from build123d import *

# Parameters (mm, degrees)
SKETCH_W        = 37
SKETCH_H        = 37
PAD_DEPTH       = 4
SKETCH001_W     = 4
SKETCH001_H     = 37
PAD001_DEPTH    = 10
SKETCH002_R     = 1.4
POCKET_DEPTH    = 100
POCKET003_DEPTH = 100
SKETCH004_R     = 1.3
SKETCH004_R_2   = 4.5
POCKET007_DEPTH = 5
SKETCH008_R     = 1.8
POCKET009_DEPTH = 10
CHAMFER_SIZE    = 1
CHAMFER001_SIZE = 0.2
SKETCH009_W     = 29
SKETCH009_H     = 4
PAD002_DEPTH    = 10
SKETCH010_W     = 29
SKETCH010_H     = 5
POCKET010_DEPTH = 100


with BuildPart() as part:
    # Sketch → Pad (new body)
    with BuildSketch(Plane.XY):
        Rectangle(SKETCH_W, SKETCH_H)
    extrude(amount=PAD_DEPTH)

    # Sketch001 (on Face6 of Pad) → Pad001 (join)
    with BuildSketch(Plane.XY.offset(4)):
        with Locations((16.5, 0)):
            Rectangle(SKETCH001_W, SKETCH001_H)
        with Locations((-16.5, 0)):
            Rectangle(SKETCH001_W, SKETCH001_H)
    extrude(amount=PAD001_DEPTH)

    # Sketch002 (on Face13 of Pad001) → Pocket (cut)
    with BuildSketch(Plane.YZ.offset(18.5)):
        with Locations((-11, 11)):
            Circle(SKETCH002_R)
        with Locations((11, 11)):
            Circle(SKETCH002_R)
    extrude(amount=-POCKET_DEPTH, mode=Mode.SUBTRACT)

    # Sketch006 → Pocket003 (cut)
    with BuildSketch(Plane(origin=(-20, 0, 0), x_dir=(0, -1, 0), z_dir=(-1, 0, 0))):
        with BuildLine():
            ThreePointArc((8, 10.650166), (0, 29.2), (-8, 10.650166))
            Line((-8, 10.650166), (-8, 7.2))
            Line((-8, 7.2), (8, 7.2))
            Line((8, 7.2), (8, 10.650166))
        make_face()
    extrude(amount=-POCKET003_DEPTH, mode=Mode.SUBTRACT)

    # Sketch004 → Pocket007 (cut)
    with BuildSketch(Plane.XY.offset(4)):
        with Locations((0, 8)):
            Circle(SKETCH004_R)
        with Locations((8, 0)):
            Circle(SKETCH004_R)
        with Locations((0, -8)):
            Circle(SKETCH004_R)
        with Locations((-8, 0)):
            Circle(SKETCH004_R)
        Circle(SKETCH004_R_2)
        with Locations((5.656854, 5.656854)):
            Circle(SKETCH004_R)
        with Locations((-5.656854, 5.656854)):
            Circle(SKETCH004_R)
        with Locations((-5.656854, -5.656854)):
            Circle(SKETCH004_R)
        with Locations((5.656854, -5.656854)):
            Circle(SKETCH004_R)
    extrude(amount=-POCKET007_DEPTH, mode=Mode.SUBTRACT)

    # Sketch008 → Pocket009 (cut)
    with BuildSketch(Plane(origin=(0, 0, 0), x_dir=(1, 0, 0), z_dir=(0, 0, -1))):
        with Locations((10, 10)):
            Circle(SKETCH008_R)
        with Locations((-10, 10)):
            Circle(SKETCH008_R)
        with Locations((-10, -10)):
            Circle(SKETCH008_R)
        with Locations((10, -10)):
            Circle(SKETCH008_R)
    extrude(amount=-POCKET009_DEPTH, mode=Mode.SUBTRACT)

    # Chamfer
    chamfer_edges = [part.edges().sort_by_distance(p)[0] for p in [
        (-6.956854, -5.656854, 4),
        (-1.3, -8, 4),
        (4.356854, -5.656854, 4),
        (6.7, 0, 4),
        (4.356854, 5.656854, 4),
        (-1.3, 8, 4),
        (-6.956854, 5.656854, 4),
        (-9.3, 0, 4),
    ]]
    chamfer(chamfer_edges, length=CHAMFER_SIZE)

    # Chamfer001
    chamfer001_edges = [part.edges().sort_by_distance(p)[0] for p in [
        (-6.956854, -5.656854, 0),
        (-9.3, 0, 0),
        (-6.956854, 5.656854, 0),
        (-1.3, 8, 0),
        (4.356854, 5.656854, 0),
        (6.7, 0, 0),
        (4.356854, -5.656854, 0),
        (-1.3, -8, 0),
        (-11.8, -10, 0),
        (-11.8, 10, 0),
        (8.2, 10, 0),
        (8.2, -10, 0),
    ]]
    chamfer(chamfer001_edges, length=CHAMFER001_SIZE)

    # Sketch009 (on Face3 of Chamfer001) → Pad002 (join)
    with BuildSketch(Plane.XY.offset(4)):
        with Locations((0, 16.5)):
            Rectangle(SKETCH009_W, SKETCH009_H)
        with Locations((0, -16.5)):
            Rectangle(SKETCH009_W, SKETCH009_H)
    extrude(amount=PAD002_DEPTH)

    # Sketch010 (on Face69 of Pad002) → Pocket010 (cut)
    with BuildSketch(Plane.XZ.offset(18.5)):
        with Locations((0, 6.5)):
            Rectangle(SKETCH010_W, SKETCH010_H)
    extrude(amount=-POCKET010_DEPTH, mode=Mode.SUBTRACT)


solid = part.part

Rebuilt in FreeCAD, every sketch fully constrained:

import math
import FreeCAD as App
import Part
import Sketcher


def edges_at(feature, points):
    """Names of the edges that pass closest to the given points."""
    edges = feature.Shape.Edges
    near = lambda p: min(range(len(edges)), key=lambda i: edges[i].distToShape(Part.Vertex(*p))[0])
    return sorted({f"Edge{near(p) + 1}" for p in points})


def add_polygon(sketch, points):
    """Adds a closed chain of lines whose ends are joined by coincident constraints."""
    first, n = sketch.GeometryCount, len(points)
    for a, b in zip(points, points[1:] + points[:1]):
        sketch.addGeometry(Part.LineSegment(App.Vector(*a, 0), App.Vector(*b, 0)), False)
    for i in range(n):
        sketch.addConstraint(Sketcher.Constraint("Coincident", first + i, 2, first + (i + 1) % n, 1))

doc = App.newDocument("Part")
body = doc.addObject("PartDesign::Body", "Body")

# Sketch on XY plane
sketch1 = body.newObject("Sketcher::SketchObject", "Sketch")
sketch1.AttachmentSupport = (doc.getObject("XY_Plane"), [""])
sketch1.MapMode = "FlatFace"
add_polygon(sketch1, [(-18.5, 18.5), (-18.5, -18.5), (18.5, -18.5), (18.5, 18.5)])  # lines 0-3
sketch1.addConstraint(Sketcher.Constraint("Vertical", 0))
sketch1.addConstraint(Sketcher.Constraint("Horizontal", 1))
sketch1.addConstraint(Sketcher.Constraint("Vertical", 2))
sketch1.addConstraint(Sketcher.Constraint("Horizontal", 3))
sketch1.addConstraint(Sketcher.Constraint("Symmetric", 0, 2, 2, 2, -1, 1))
sketch1.addConstraint(Sketcher.Constraint("Equal", 3, 0))
sketch1.addConstraint(Sketcher.Constraint("DistanceX", 1, 1, 1, 2, 37.0))
pad1 = body.newObject("PartDesign::Pad", "Pad")
pad1.Profile = sketch1
pad1.Length = 4

# Sketch on XY plane
sketch2 = body.newObject("Sketcher::SketchObject", "Sketch001")
sketch2.AttachmentSupport = (doc.getObject("XY_Plane"), [""])
sketch2.MapMode = "FlatFace"
sketch2.AttachmentOffset = App.Placement(App.Vector(0, 0, 4), App.Rotation())
add_polygon(sketch2, [(14.5, 18.5), (14.5, -18.5), (18.5, -18.5), (18.5, 18.5)])  # lines 0-3
add_polygon(sketch2, [(-18.5, 18.5), (-18.5, -18.5), (-14.5, -18.5), (-14.5, 18.5)])  # lines 4-7
sketch2.addConstraint(Sketcher.Constraint("Vertical", 0))
sketch2.addConstraint(Sketcher.Constraint("Horizontal", 1))
sketch2.addConstraint(Sketcher.Constraint("Vertical", 2))
sketch2.addConstraint(Sketcher.Constraint("Horizontal", 3))
sketch2.addConstraint(Sketcher.Constraint("Vertical", 4))
sketch2.addConstraint(Sketcher.Constraint("Horizontal", 5))
sketch2.addConstraint(Sketcher.Constraint("Vertical", 6))
sketch2.addConstraint(Sketcher.Constraint("Horizontal", 7))
sketch2.addConstraint(Sketcher.Constraint("Symmetric", 2, 2, 4, 2, -1, 1))
sketch2.addConstraint(Sketcher.Constraint("Symmetric", 0, 2, 6, 2, -1, 1))
sketch2.addConstraint(Sketcher.Constraint("Horizontal", 1, 2, 4, 2))
sketch2.addConstraint(Sketcher.Constraint("DistanceX", 1, 1, 1, 2, 4.0))
sketch2.addConstraint(Sketcher.Constraint("DistanceY", 0, 2, 0, 1, 37.0))
sketch2.addConstraint(Sketcher.Constraint("DistanceX", 4, 2, 0, 2, 33.0))
pad2 = body.newObject("PartDesign::Pad", "Pad001")
pad2.Profile = sketch2
pad2.Length = 10

# Sketch on YZ plane
sketch3 = body.newObject("Sketcher::SketchObject", "Sketch002")
sketch3.AttachmentSupport = (doc.getObject("YZ_Plane"), [""])
sketch3.MapMode = "FlatFace"
sketch3.AttachmentOffset = App.Placement(App.Vector(0, 0, 18.5), App.Rotation())
sketch3.addGeometry(Part.Circle(App.Vector(-11, 11, 0), App.Vector(0, 0, 1), 1.4), False)
sketch3.addGeometry(Part.Circle(App.Vector(11, 11, 0), App.Vector(0, 0, 1), 1.4), False)
sketch3.addConstraint(Sketcher.Constraint("Equal", 0, 1))
sketch3.addConstraint(Sketcher.Constraint("Symmetric", 0, 3, 1, 3, -2))
sketch3.addConstraint(Sketcher.Constraint("Diameter", 0, 2.8))
sketch3.addConstraint(Sketcher.Constraint("DistanceX", 0, 3, -1, 1, 11.0))
sketch3.addConstraint(Sketcher.Constraint("DistanceY", -1, 1, 0, 3, 11.0))
pocket1 = body.newObject("PartDesign::Pocket", "Pocket")
pocket1.Profile = sketch3
pocket1.Length = 100

# Sketch on YZ plane
sketch4 = body.newObject("Sketcher::SketchObject", "Sketch003")
sketch4.AttachmentSupport = (doc.getObject("YZ_Plane"), [""])
sketch4.MapMode = "FlatFace"
sketch4.AttachmentOffset = App.Placement(App.Vector(0, 0, -20), App.Rotation())
sketch4.addGeometry(Part.ArcOfCircle(Part.Circle(App.Vector(0, 18.2, 0), App.Vector(0, 0, 1), 11), math.radians(-43.341757), math.radians(223.341757)), False)
sketch4.addGeometry(Part.LineSegment(App.Vector(8, 10.650166, 0), App.Vector(8, 7.2, 0)), False)
sketch4.addGeometry(Part.LineSegment(App.Vector(8, 7.2, 0), App.Vector(-8, 7.2, 0)), False)
sketch4.addGeometry(Part.LineSegment(App.Vector(-8, 7.2, 0), App.Vector(-8, 10.650166, 0)), False)
sketch4.addConstraint(Sketcher.Constraint("Coincident", 0, 1, 1, 1))
sketch4.addConstraint(Sketcher.Constraint("Coincident", 1, 2, 2, 1))
sketch4.addConstraint(Sketcher.Constraint("Coincident", 2, 2, 3, 1))
sketch4.addConstraint(Sketcher.Constraint("Coincident", 3, 2, 0, 2))
sketch4.addConstraint(Sketcher.Constraint("Vertical", 1))
sketch4.addConstraint(Sketcher.Constraint("Horizontal", 2))
sketch4.addConstraint(Sketcher.Constraint("Vertical", 3))
sketch4.addConstraint(Sketcher.Constraint("Symmetric", 0, 1, 3, 2, -2))
sketch4.addConstraint(Sketcher.Constraint("Radius", 0, 11.0))
sketch4.addConstraint(Sketcher.Constraint("DistanceX", 2, 2, 2, 1, 16.0))
sketch4.addConstraint(Sketcher.Constraint("DistanceY", 1, 2, 0, 3, 11.0))
sketch4.addConstraint(Sketcher.Constraint("DistanceY", -1, 1, 0, 3, 18.2))
pocket2 = body.newObject("PartDesign::Pocket", "Pocket001")
pocket2.Profile = sketch4
pocket2.Length = 100
pocket2.Reversed = True

# Sketch on XY plane
sketch5 = body.newObject("Sketcher::SketchObject", "Sketch004")
sketch5.AttachmentSupport = (doc.getObject("XY_Plane"), [""])
sketch5.MapMode = "FlatFace"
sketch5.AttachmentOffset = App.Placement(App.Vector(0, 0, 4), App.Rotation())
sketch5.addGeometry(Part.Circle(App.Vector(0, 8, 0), App.Vector(0, 0, 1), 1.3), False)
sketch5.addGeometry(Part.Circle(App.Vector(8, 0, 0), App.Vector(0, 0, 1), 1.3), False)
sketch5.addGeometry(Part.Circle(App.Vector(0, -8, 0), App.Vector(0, 0, 1), 1.3), False)
sketch5.addGeometry(Part.Circle(App.Vector(-8, 0, 0), App.Vector(0, 0, 1), 1.3), False)
sketch5.addGeometry(Part.Circle(App.Vector(0, 0, 0), App.Vector(0, 0, 1), 4.5), False)
sketch5.addGeometry(Part.Circle(App.Vector(5.656854, 5.656854, 0), App.Vector(0, 0, 1), 1.3), False)
sketch5.addGeometry(Part.Circle(App.Vector(-5.656854, 5.656854, 0), App.Vector(0, 0, 1), 1.3), False)
sketch5.addGeometry(Part.Circle(App.Vector(-5.656854, -5.656854, 0), App.Vector(0, 0, 1), 1.3), False)
sketch5.addGeometry(Part.Circle(App.Vector(5.656854, -5.656854, 0), App.Vector(0, 0, 1), 1.3), False)
sketch5.addConstraint(Sketcher.Constraint("Coincident", 4, 3, -1, 1))
sketch5.addConstraint(Sketcher.Constraint("Equal", 0, 1))
sketch5.addConstraint(Sketcher.Constraint("Equal", 1, 2))
sketch5.addConstraint(Sketcher.Constraint("Equal", 2, 3))
sketch5.addConstraint(Sketcher.Constraint("Equal", 3, 5))
sketch5.addConstraint(Sketcher.Constraint("Equal", 5, 6))
sketch5.addConstraint(Sketcher.Constraint("Equal", 6, 7))
sketch5.addConstraint(Sketcher.Constraint("Equal", 7, 8))
sketch5.addConstraint(Sketcher.Constraint("Symmetric", 0, 3, 2, 3, -1, 1))
sketch5.addConstraint(Sketcher.Constraint("Symmetric", 1, 3, 3, 3, -1, 1))
sketch5.addConstraint(Sketcher.Constraint("Symmetric", 5, 3, 7, 3, -1, 1))
sketch5.addConstraint(Sketcher.Constraint("Symmetric", 6, 3, 8, 3, -1, 1))
sketch5.addConstraint(Sketcher.Constraint("Symmetric", 5, 3, 6, 3, -2))
sketch5.addConstraint(Sketcher.Constraint("PointOnObject", 0, 3, -2))
sketch5.addConstraint(Sketcher.Constraint("PointOnObject", 1, 3, -1))
sketch5.addConstraint(Sketcher.Constraint("Diameter", 4, 9.0))
sketch5.addConstraint(Sketcher.Constraint("Diameter", 0, 2.6))
sketch5.addConstraint(Sketcher.Constraint("DistanceY", -1, 1, 0, 3, 8.0))
sketch5.addConstraint(Sketcher.Constraint("DistanceX", -1, 1, 1, 3, 8.0))
sketch5.addConstraint(Sketcher.Constraint("DistanceX", -1, 1, 5, 3, 5.656854))
sketch5.addConstraint(Sketcher.Constraint("DistanceY", -1, 1, 5, 3, 5.656854))
pocket3 = body.newObject("PartDesign::Pocket", "Pocket002")
pocket3.Profile = sketch5
pocket3.Length = 5

# Sketch on XY plane
sketch6 = body.newObject("Sketcher::SketchObject", "Sketch005")
sketch6.AttachmentSupport = (doc.getObject("XY_Plane"), [""])
sketch6.MapMode = "FlatFace"
sketch6.addGeometry(Part.Circle(App.Vector(10, -10, 0), App.Vector(0, 0, 1), 1.8), False)
sketch6.addGeometry(Part.Circle(App.Vector(-10, -10, 0), App.Vector(0, 0, 1), 1.8), False)
sketch6.addGeometry(Part.Circle(App.Vector(-10, 10, 0), App.Vector(0, 0, 1), 1.8), False)
sketch6.addGeometry(Part.Circle(App.Vector(10, 10, 0), App.Vector(0, 0, 1), 1.8), False)
sketch6.addConstraint(Sketcher.Constraint("Equal", 0, 1))
sketch6.addConstraint(Sketcher.Constraint("Equal", 1, 2))
sketch6.addConstraint(Sketcher.Constraint("Equal", 2, 3))
sketch6.addConstraint(Sketcher.Constraint("Symmetric", 0, 3, 2, 3, -1, 1))
sketch6.addConstraint(Sketcher.Constraint("Symmetric", 1, 3, 3, 3, -1, 1))
sketch6.addConstraint(Sketcher.Constraint("Symmetric", 0, 3, 1, 3, -2))
sketch6.addConstraint(Sketcher.Constraint("Diameter", 0, 3.6))
sketch6.addConstraint(Sketcher.Constraint("DistanceX", -1, 1, 0, 3, 10.0))
sketch6.addConstraint(Sketcher.Constraint("DistanceY", 0, 3, -1, 1, 10.0))
pocket4 = body.newObject("PartDesign::Pocket", "Pocket003")
pocket4.Profile = sketch6
pocket4.Length = 10
pocket4.Reversed = True
doc.recompute()

chamfer = body.newObject("PartDesign::Chamfer", "Chamfer")
chamfer.Base = (pocket4, edges_at(pocket4, [
    (-6.957, -5.657, 4),
    (-1.3, -8, 4),
    (4.357, -5.657, 4),
    (6.7, 0, 4),
    (4.357, 5.657, 4),
    (-1.3, 8, 4),
    (-6.957, 5.657, 4),
    (-9.3, 0, 4),
]))
chamfer.Size = 1
doc.recompute()

chamfer2 = body.newObject("PartDesign::Chamfer", "Chamfer001")
chamfer2.Base = (chamfer, edges_at(chamfer, [
    (-6.957, -5.657, 0),
    (-9.3, 0, 0),
    (-6.957, 5.657, 0),
    (-1.3, 8, 0),
    (4.357, 5.657, 0),
    (6.7, 0, 0),
    (4.357, -5.657, 0),
    (-1.3, -8, 0),
    (-11.8, -10, 0),
    (-11.8, 10, 0),
    (8.2, 10, 0),
    (8.2, -10, 0),
]))
chamfer2.Size = 0.2

# Sketch on XY plane
sketch7 = body.newObject("Sketcher::SketchObject", "Sketch006")
sketch7.AttachmentSupport = (doc.getObject("XY_Plane"), [""])
sketch7.MapMode = "FlatFace"
sketch7.AttachmentOffset = App.Placement(App.Vector(0, 0, 4), App.Rotation())
add_polygon(sketch7, [(-14.5, 18.5), (-14.5, 14.5), (14.5, 14.5), (14.5, 18.5)])  # lines 0-3
add_polygon(sketch7, [(-14.5, -14.5), (-14.5, -18.5), (14.5, -18.5), (14.5, -14.5)])  # lines 4-7
sketch7.addConstraint(Sketcher.Constraint("Vertical", 0))
sketch7.addConstraint(Sketcher.Constraint("Horizontal", 1))
sketch7.addConstraint(Sketcher.Constraint("Vertical", 2))
sketch7.addConstraint(Sketcher.Constraint("Horizontal", 3))
sketch7.addConstraint(Sketcher.Constraint("Vertical", 4))
sketch7.addConstraint(Sketcher.Constraint("Horizontal", 5))
sketch7.addConstraint(Sketcher.Constraint("Vertical", 6))
sketch7.addConstraint(Sketcher.Constraint("Horizontal", 7))
sketch7.addConstraint(Sketcher.Constraint("Symmetric", 2, 2, 4, 2, -1, 1))
sketch7.addConstraint(Sketcher.Constraint("Symmetric", 0, 2, 6, 2, -1, 1))
sketch7.addConstraint(Sketcher.Constraint("Vertical", 3, 2, 4, 2))
sketch7.addConstraint(Sketcher.Constraint("DistanceX", 1, 1, 1, 2, 29.0))
sketch7.addConstraint(Sketcher.Constraint("DistanceY", 0, 2, 0, 1, 4.0))
sketch7.addConstraint(Sketcher.Constraint("DistanceY", 4, 2, 0, 2, 33.0))
pad3 = body.newObject("PartDesign::Pad", "Pad002")
pad3.Profile = sketch7
pad3.Length = 10

# Sketch on XZ plane
sketch8 = body.newObject("Sketcher::SketchObject", "Sketch007")
sketch8.AttachmentSupport = (doc.getObject("XZ_Plane"), [""])
sketch8.MapMode = "FlatFace"
sketch8.AttachmentOffset = App.Placement(App.Vector(0, 0, 18.5), App.Rotation())
add_polygon(sketch8, [(-14.5, 9), (-14.5, 4), (14.5, 4), (14.5, 9)])  # lines 0-3
sketch8.addConstraint(Sketcher.Constraint("Vertical", 0))
sketch8.addConstraint(Sketcher.Constraint("Horizontal", 1))
sketch8.addConstraint(Sketcher.Constraint("Vertical", 2))
sketch8.addConstraint(Sketcher.Constraint("Horizontal", 3))
sketch8.addConstraint(Sketcher.Constraint("DistanceX", 1, 1, 1, 2, 29.0))
sketch8.addConstraint(Sketcher.Constraint("DistanceY", 0, 2, 0, 1, 5.0))
sketch8.addConstraint(Sketcher.Constraint("DistanceY", -1, 1, 0, 2, 4.0))
sketch8.addConstraint(Sketcher.Constraint("DistanceX", 0, 2, -1, 1, 14.5))
pocket5 = body.newObject("PartDesign::Pocket", "Pocket004")
pocket5.Profile = sketch8
pocket5.Length = 100

doc.recompute()
